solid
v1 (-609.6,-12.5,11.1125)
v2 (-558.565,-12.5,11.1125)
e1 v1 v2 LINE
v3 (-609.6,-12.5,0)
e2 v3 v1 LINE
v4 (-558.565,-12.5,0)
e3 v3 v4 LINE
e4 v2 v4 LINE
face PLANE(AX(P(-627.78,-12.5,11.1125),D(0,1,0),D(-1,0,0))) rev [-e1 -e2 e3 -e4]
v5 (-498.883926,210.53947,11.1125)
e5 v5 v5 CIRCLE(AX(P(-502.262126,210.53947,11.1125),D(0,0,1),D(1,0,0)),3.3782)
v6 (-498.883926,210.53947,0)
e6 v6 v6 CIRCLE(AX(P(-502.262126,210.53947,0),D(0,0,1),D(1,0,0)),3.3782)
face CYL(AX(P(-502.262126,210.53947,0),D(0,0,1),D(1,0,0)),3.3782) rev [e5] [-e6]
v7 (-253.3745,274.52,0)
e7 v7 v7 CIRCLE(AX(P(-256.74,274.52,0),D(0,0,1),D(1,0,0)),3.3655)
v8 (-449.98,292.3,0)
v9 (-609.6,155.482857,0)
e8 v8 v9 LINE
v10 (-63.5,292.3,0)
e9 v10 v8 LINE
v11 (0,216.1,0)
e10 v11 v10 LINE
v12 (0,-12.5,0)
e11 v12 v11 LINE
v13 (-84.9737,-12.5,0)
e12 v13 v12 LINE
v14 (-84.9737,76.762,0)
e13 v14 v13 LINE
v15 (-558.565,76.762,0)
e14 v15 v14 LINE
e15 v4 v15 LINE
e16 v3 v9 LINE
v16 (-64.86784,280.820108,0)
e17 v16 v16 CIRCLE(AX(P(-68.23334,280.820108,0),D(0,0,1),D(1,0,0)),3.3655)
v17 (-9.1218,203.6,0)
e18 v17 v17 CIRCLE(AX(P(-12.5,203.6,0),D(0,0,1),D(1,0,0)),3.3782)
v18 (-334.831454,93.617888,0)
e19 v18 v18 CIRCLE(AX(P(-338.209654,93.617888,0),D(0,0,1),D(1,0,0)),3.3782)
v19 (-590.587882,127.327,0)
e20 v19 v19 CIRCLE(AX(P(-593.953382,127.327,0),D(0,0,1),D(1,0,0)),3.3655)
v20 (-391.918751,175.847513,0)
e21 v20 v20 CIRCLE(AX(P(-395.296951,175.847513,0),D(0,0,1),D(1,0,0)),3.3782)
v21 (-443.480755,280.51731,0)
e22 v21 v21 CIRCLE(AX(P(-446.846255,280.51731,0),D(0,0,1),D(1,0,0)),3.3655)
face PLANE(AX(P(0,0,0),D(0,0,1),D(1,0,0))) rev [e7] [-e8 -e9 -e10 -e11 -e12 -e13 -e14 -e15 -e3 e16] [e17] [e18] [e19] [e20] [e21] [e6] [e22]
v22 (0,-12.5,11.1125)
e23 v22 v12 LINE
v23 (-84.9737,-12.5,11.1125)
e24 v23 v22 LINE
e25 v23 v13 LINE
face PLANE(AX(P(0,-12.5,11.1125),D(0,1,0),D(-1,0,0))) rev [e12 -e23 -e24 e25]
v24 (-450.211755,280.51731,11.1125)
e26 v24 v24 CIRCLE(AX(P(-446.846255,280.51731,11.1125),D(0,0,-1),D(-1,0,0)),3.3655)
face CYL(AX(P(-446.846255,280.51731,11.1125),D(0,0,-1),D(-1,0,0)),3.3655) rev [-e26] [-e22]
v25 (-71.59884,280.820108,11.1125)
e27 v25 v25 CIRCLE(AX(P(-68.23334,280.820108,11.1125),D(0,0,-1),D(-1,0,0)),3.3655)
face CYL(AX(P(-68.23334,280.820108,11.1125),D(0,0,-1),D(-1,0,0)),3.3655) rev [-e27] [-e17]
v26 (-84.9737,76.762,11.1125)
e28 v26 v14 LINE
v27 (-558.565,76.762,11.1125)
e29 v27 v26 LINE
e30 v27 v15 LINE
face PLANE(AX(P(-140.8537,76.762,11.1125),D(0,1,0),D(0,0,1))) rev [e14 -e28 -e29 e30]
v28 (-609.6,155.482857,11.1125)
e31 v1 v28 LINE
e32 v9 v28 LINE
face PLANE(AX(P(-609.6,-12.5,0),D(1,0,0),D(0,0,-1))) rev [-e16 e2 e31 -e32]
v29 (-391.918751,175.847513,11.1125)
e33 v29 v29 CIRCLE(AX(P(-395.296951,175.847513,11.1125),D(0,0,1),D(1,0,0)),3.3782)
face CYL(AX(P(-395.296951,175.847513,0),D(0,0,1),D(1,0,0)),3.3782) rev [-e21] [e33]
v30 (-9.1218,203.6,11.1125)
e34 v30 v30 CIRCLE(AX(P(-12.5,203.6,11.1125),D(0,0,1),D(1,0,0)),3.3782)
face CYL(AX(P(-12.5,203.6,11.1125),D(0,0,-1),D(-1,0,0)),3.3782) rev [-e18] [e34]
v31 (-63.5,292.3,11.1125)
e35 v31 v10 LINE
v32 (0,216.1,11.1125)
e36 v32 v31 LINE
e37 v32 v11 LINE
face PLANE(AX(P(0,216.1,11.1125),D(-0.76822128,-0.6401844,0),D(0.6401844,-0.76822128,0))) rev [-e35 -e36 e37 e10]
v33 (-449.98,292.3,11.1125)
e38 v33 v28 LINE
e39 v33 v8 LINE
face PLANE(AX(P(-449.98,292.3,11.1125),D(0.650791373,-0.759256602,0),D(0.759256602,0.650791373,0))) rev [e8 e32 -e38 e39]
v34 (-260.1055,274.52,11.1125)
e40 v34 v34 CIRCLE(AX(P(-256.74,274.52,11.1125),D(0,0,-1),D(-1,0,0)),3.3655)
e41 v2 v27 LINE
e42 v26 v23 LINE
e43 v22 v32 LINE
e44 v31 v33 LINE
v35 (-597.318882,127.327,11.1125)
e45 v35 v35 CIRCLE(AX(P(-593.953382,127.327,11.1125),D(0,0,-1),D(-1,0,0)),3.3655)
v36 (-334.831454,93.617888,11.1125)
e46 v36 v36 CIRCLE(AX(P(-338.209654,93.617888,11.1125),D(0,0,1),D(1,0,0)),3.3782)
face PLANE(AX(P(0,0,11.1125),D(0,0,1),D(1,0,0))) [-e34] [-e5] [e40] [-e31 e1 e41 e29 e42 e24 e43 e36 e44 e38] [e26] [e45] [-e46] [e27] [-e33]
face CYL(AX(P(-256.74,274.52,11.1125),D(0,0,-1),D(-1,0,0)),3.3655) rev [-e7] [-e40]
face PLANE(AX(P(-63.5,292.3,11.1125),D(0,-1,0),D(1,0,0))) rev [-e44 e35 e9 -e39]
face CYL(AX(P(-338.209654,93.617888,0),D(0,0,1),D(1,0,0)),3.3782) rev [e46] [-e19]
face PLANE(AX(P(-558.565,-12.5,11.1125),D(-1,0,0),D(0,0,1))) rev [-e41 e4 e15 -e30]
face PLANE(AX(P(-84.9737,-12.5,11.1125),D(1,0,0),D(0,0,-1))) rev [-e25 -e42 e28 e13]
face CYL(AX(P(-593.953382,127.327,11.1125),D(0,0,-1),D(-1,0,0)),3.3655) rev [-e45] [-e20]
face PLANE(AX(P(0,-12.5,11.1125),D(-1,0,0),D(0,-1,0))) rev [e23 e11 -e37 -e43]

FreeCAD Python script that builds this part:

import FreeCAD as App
import Part
import Sketcher
from FreeCAD import Vector
Q = App.Units.Quantity


def add_polygon(sketch, points):
    """Adds a closed chain of lines whose ends are joined by coincident constraints."""
    first, n = sketch.GeometryCount, len(points)
    for a, b in zip(points, points[1:] + points[:1]):
        sketch.addGeometry(Part.LineSegment(App.Vector(*a, 0), App.Vector(*b, 0)), False)
    for i in range(n):
        sketch.addConstraint(Sketcher.Constraint("Coincident", first + i, 2, first + (i + 1) % n, 1))

doc = App.newDocument("Part")
body = doc.addObject("PartDesign::Body", "Body")

# Sketch on XY plane
sketch1 = body.newObject("Sketcher::SketchObject", "Sketch")
sketch1.AttachmentSupport = (doc.getObject("XY_Plane"), [""])
sketch1.MapMode = "FlatFace"
add_polygon(sketch1, [(-558.6, 76.8), (-85, 76.8), (-85, -12.5), (0, -12.5), (0, 216.1), (-63.5, 292.3), (-450, 292.3), (-627.8, 139.9), (-627.8, -12.5), (-558.6, -12.5)])  # lines 0-9
sketch1.addGeometry(Part.Circle(Vector(-12.5, 203.6, 0), Vector(0, 0, 1), 3.4), False)  # 10
sketch1.addConstraint(Sketcher.Constraint("Horizontal", 0))
sketch1.addConstraint(Sketcher.Constraint("Vertical", 1))
sketch1.addConstraint(Sketcher.Constraint("Horizontal", 2))
sketch1.addConstraint(Sketcher.Constraint("Vertical", 3))
sketch1.addConstraint(Sketcher.Constraint("Horizontal", 5))
sketch1.addConstraint(Sketcher.Constraint("Vertical", 7))
sketch1.addConstraint(Sketcher.Constraint("Horizontal", 8))
sketch1.addConstraint(Sketcher.Constraint("Vertical", 9))
sketch1.addConstraint(Sketcher.Constraint("PointOnObject", 2, 2, -2))
sketch1.addConstraint(Sketcher.Constraint("Horizontal", 2, 2, 7, 2))
sketch1.addConstraint(Sketcher.Constraint("DistanceY", 3, 1, 3, 2, Q("9 in")))
sketch1.addConstraint(Sketcher.Constraint("DistanceY", 7, 2, 7, 1, Q("6 in")))
sketch1.addConstraint(Sketcher.Constraint("Diameter", 10, Q("0.266 in")))
sketch1.addConstraint(Sketcher.Constraint("DistanceY", 3, 2, 4, 2, Q("3 in")))
sketch1.addConstraint(Sketcher.Constraint("DistanceX", 6, 2, 5, 2, Q("7 in")))
sketch1.addConstraint(Sketcher.Constraint("DistanceX", 4, 2, -1, 1, Q("2.5 in")))
sketch1.addConstraint(Sketcher.Constraint("DistanceX", 8, 1, 8, 2, Q("2.725 in")))
sketch1.addConstraint(Sketcher.Constraint("DistanceX", 0, 1, 0, 2, Q("473.5913 mm")))
sketch1.addConstraint(Sketcher.Constraint("DistanceX", 2, 1, 2, 2, Q("84.9737 mm")))
sketch1.addConstraint(Sketcher.Constraint("DistanceY", 1, 2, 1, 1, Q("89.262 mm")))
sketch1.addConstraint(Sketcher.Constraint("DistanceX", 10, 3, -1, 1, Q("12.5 mm")))
sketch1.addConstraint(Sketcher.Constraint("DistanceY", -1, 1, 10, 3, Q("203.6 mm")))
sketch1.addConstraint(Sketcher.Constraint("DistanceY", -1, 1, 0, 2, Q("76.762 mm")))
pad1 = body.newObject("PartDesign::Pad", "Pad")
pad1.Profile = sketch1
pad1.Length = Q("0.4375 in")

# Sketch on XY plane
sketch2 = body.newObject("Sketcher::SketchObject", "Sketch001")
sketch2.AttachmentSupport = (doc.getObject("XY_Plane"), [""])
sketch2.MapMode = "FlatFace"
sketch2.AttachmentOffset = App.Placement(Vector(0, 0, -0.2 * 25.4), App.Rotation())
sketch2.addGeometry(Part.Circle(Vector(-594, 127.3, 0), Vector(0, 0, 1), 3.4), False)
sketch2.addConstraint(Sketcher.Constraint("Diameter", 0, Q("0.265 in")))
sketch2.addConstraint(Sketcher.Constraint("DistanceY", -1, 1, 0, 3, Q("127.327 mm")))
sketch2.addConstraint(Sketcher.Constraint("DistanceX", 0, 3, -1, 1, Q("593.953382 mm")))
pocket1 = body.newObject("PartDesign::Pocket", "Pocket")
pocket1.Profile = sketch2
pocket1.Type = "ThroughAll"
pocket1.Reversed = True

# Sketch on XY plane
sketch3 = body.newObject("Sketcher::SketchObject", "Sketch002")
sketch3.AttachmentSupport = (doc.getObject("XY_Plane"), [""])
sketch3.MapMode = "FlatFace"
sketch3.AttachmentOffset = App.Placement(Vector(0, 0, -0.075 * 25.4), App.Rotation())
sketch3.addGeometry(Part.Circle(Vector(-446.8, 280.5, 0), Vector(0, 0, 1), 3.4), False)
sketch3.addConstraint(Sketcher.Constraint("Diameter", 0, Q("0.265 in")))
sketch3.addConstraint(Sketcher.Constraint("DistanceY", -1, 1, 0, 3, Q("280.51731 mm")))
sketch3.addConstraint(Sketcher.Constraint("DistanceX", 0, 3, -1, 1, Q("446.846255 mm")))
pocket2 = body.newObject("PartDesign::Pocket", "Pocket001")
pocket2.Profile = sketch3
pocket2.Type = "ThroughAll"
pocket2.Reversed = True

# Sketch on XY plane
sketch4 = body.newObject("Sketcher::SketchObject", "Sketch003")
sketch4.AttachmentSupport = (doc.getObject("XY_Plane"), [""])
sketch4.MapMode = "FlatFace"
sketch4.AttachmentOffset = App.Placement(Vector(0, 0, -0.075 * 25.4), App.Rotation())
sketch4.addGeometry(Part.Circle(Vector(-256.7, 274.5, 0), Vector(0, 0, 1), 3.4), False)
sketch4.addConstraint(Sketcher.Constraint("Diameter", 0, Q("0.265 in")))
sketch4.addConstraint(Sketcher.Constraint("DistanceX", 0, 3, -1, 1, Q("256.74 mm")))
sketch4.addConstraint(Sketcher.Constraint("DistanceY", -1, 1, 0, 3, Q("274.52 mm")))
pocket3 = body.newObject("PartDesign::Pocket", "Pocket002")
pocket3.Profile = sketch4
pocket3.Type = "ThroughAll"
pocket3.Reversed = True

# Sketch on XY plane
sketch5 = body.newObject("Sketcher::SketchObject", "Sketch004")
sketch5.AttachmentSupport = (doc.getObject("XY_Plane"), [""])
sketch5.MapMode = "FlatFace"
sketch5.AttachmentOffset = App.Placement(Vector(0, 0, -0.075 * 25.4), App.Rotation())
sketch5.addGeometry(Part.Circle(Vector(-68.2, 280.8, 0), Vector(0, 0, 1), 3.4), False)
sketch5.addConstraint(Sketcher.Constraint("Diameter", 0, Q("0.265 in")))
sketch5.addConstraint(Sketcher.Constraint("DistanceX", 0, 3, -1, 1, Q("68.23334 mm")))
sketch5.addConstraint(Sketcher.Constraint("DistanceY", -1, 1, 0, 3, Q("280.820108 mm")))
pocket4 = body.newObject("PartDesign::Pocket", "Pocket003")
pocket4.Profile = sketch5
pocket4.Type = "ThroughAll"
pocket4.Reversed = True

# Sketch on XY plane
sketch6 = body.newObject("Sketcher::SketchObject", "Sketch005")
sketch6.AttachmentSupport = (doc.getObject("XY_Plane"), [""])
sketch6.MapMode = "FlatFace"
sketch6.AttachmentOffset = App.Placement(Vector(0, 0, 0.7375 * 25.4), App.Rotation())
sketch6.addGeometry(Part.Circle(Vector(-502.3, 210.5, 0), Vector(0, 0, 1), 3.4), False)
sketch6.addGeometry(Part.Circle(Vector(-338.2, 93.6, 0), Vector(0, 0, 1), 3.4), False)
sketch6.addGeometry(Part.Circle(Vector(-395.3, 175.8, 0), Vector(0, 0, 1), 3.4), False)
sketch6.addConstraint(Sketcher.Constraint("Equal", 0, 1))
sketch6.addConstraint(Sketcher.Constraint("Equal", 1, 2))
sketch6.addConstraint(Sketcher.Constraint("Diameter", 0, Q("0.266 in")))
sketch6.addConstraint(Sketcher.Constraint("DistanceY", -1, 1, 0, 3, Q("210.53947 mm")))
sketch6.addConstraint(Sketcher.Constraint("DistanceX", 2, 3, -1, 1, Q("395.296951 mm")))
sketch6.addConstraint(Sketcher.Constraint("DistanceX", 0, 3, 1, 3, Q("164.052471 mm")))
sketch6.addConstraint(Sketcher.Constraint("DistanceY", 1, 3, 0, 3, Q("116.921582 mm")))
sketch6.addConstraint(Sketcher.Constraint("DistanceX", 0, 3, -1, 1, Q("502.262126 mm")))
sketch6.addConstraint(Sketcher.Constraint("DistanceY", -1, 1, 2, 3, Q("175.847513 mm")))
pocket5 = body.newObject("PartDesign::Pocket", "Pocket004")
pocket5.Profile = sketch6
pocket5.Type = "ThroughAll"
pocket5.Midplane = True

# Sketch on XY plane
sketch7 = body.newObject("Sketcher::SketchObject", "Sketch006")
sketch7.AttachmentSupport = (doc.getObject("XY_Plane"), [""])
sketch7.MapMode = "FlatFace"
sketch7.AttachmentOffset = App.Placement(Vector(0, 0, 0.4375 * 25.4), App.Rotation())
add_polygon(sketch7, [(-628, 155), (-628, -12), (-610, -12), (-610, 155)])  # lines 0-3
sketch7.addConstraint(Sketcher.Constraint("Vertical", 0))
sketch7.addConstraint(Sketcher.Constraint("Horizontal", 1))
sketch7.addConstraint(Sketcher.Constraint("Vertical", 2))
sketch7.addConstraint(Sketcher.Constraint("Horizontal", 3))
sketch7.addConstraint(Sketcher.Constraint("DistanceX", 1, 2, -1, 1, Q("24 in")))
sketch7.addConstraint(Sketcher.Constraint("DistanceX", 1, 1, 1, 2, Q("18.18 mm")))
sketch7.addConstraint(Sketcher.Constraint("DistanceY", 0, 2, -1, 1, Q("12.5 mm")))
sketch7.addConstraint(Sketcher.Constraint("DistanceY", 0, 2, 0, 1, Q("167.982857 mm")))
pocket6 = body.newObject("PartDesign::Pocket", "Pocket005")
pocket6.Profile = sketch7
pocket6.Type = "ThroughAll"

doc.recompute()
